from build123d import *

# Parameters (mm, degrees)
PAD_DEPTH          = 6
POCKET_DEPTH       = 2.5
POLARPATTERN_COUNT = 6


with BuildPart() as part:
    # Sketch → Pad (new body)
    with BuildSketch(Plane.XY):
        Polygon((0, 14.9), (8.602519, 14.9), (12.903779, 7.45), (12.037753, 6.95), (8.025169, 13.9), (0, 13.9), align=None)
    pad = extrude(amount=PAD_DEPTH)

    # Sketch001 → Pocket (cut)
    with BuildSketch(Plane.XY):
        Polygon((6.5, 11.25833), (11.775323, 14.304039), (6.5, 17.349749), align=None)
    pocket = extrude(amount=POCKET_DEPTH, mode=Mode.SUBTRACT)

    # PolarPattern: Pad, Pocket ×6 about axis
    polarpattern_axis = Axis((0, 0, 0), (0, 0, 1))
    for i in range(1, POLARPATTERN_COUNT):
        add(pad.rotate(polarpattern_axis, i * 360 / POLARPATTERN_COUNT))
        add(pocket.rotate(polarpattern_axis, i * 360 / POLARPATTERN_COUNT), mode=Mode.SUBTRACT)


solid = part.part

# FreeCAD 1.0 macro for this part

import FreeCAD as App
import Part
import Sketcher
Q = App.Units.Quantity

doc = App.newDocument("Part")
params = doc.addObject("Spreadsheet::Sheet", "Params")
for row, (alias, value) in enumerate([
    ("sketch1_height", "1 mm"),
    ("sketch1_length", "1.000001 mm"),
    ("pad1_length", "6 mm"),
    ("pocket1_length", "2.5 mm"),
], start=1):
    params.set(f"A{row}", alias)
    params.set(f"B{row}", "=" + value)
    params.setAlias(f"B{row}", alias)

body = doc.addObject("PartDesign::Body", "Body")

# Sketch on XY plane
sketch1 = body.newObject("Sketcher::SketchObject", "Sketch")
sketch1.AttachmentSupport = (doc.getObject("XY_Plane"), [""])
sketch1.MapMode = "FlatFace"
sketch1.addGeometry(Part.LineSegment(App.Vector(8.6, 14.9, 0), App.Vector(0, 14.9, 0)), False)
sketch1.addGeometry(Part.LineSegment(App.Vector(0, 14.9, 0), App.Vector(0, 13.9, 0)), False)
sketch1.addGeometry(Part.LineSegment(App.Vector(0, 13.9, 0), App.Vector(8, 13.9, 0)), False)
sketch1.addGeometry(Part.LineSegment(App.Vector(8, 13.9, 0), App.Vector(12, 7, 0)), False)
sketch1.addGeometry(Part.LineSegment(App.Vector(12, 7, 0), App.Vector(12.9, 7.5, 0)), False)
sketch1.addGeometry(Part.LineSegment(App.Vector(12.9, 7.5, 0), App.Vector(8.6, 14.9, 0)), False)
sketch1.addConstraint(Sketcher.Constraint("Coincident", 0, 2, 1, 1))
sketch1.addConstraint(Sketcher.Constraint("Coincident", 1, 2, 2, 1))
sketch1.addConstraint(Sketcher.Constraint("Coincident", 2, 2, 3, 1))
sketch1.addConstraint(Sketcher.Constraint("Coincident", 3, 2, 4, 1))
sketch1.addConstraint(Sketcher.Constraint("Coincident", 4, 2, 5, 1))
sketch1.addConstraint(Sketcher.Constraint("Coincident", 5, 2, 0, 1))
sketch1.addConstraint(Sketcher.Constraint("Horizontal", 0))
sketch1.addConstraint(Sketcher.Constraint("Vertical", 1))
sketch1.addConstraint(Sketcher.Constraint("Horizontal", 2))
sketch1.addConstraint(Sketcher.Constraint("PointOnObject", 0, 2, -2))
sketch1.addConstraint(Sketcher.Constraint("Perpendicular", 3, 4))
sketch1.addConstraint(Sketcher.Constraint("Perpendicular", 4, 5))
sketch1.addConstraint(Sketcher.Constraint("DistanceY", 1, 2, 1, 1, 1.0))
sketch1.addConstraint(Sketcher.Constraint("Angle", 3, Q("-60.000002 deg")))
sketch1.addConstraint(Sketcher.Constraint("Distance", 4, 1.000001))
sketch1.addConstraint(Sketcher.Constraint("DistanceY", -1, 1, 0, 2, 14.9))
sketch1.addConstraint(Sketcher.Constraint("DistanceY", -1, 1, 3, 2, 6.95))
sketch1.addConstraint(Sketcher.Constraint("DistanceX", 0, 2, 0, 1, 8.602519))
sketch1.setExpression("Constraints[12]", "Params.sketch1_height")
sketch1.setExpression("Constraints[14]", "Params.sketch1_length")
pad1 = body.newObject("PartDesign::Pad", "Pad")
pad1.Profile = sketch1
pad1.setExpression("Length", "Params.pad1_length")

# Sketch on XY plane
sketch2 = body.newObject("Sketcher::SketchObject", "Sketch001")
sketch2.AttachmentSupport = (doc.getObject("XY_Plane"), [""])
sketch2.MapMode = "FlatFace"
sketch2.addGeometry(Part.LineSegment(App.Vector(6, 11, 0), App.Vector(12, 14, 0)), False)
sketch2.addGeometry(Part.LineSegment(App.Vector(12, 14, 0), App.Vector(6, 17, 0)), False)
sketch2.addGeometry(Part.LineSegment(App.Vector(6, 17, 0), App.Vector(6, 11, 0)), False)
sketch2.addConstraint(Sketcher.Constraint("Coincident", 0, 2, 1, 1))
sketch2.addConstraint(Sketcher.Constraint("Coincident", 1, 2, 2, 1))
sketch2.addConstraint(Sketcher.Constraint("Coincident", 2, 2, 0, 1))
sketch2.addConstraint(Sketcher.Constraint("Vertical", 2))
sketch2.addConstraint(Sketcher.Constraint("Equal", 0, 1))
sketch2.addConstraint(Sketcher.Constraint("Angle", 0, Q("29.999999 deg")))
sketch2.addConstraint(Sketcher.Constraint("DistanceX", -1, 1, 1, 2, 6.5))
sketch2.addConstraint(Sketcher.Constraint("DistanceY", 2, 2, 2, 1, 6.091419))
sketch2.addConstraint(Sketcher.Constraint("DistanceY", -1, 1, 0, 2, 14.304039))
pocket1 = body.newObject("PartDesign::Pocket", "Pocket")
pocket1.Profile = sketch2
pocket1.setExpression("Length", "Params.pocket1_length")
pocket1.Reversed = True
doc.recompute()

polarpattern = body.newObject("PartDesign::PolarPattern", "PolarPattern")
polarpattern.Originals = [pad1, pocket1]
polarpattern.Axis = (doc.getObject("Z_Axis"), [""])
polarpattern.Angle = 360
polarpattern.Occurrences = 6
body.Tip = polarpattern

doc.recompute()
